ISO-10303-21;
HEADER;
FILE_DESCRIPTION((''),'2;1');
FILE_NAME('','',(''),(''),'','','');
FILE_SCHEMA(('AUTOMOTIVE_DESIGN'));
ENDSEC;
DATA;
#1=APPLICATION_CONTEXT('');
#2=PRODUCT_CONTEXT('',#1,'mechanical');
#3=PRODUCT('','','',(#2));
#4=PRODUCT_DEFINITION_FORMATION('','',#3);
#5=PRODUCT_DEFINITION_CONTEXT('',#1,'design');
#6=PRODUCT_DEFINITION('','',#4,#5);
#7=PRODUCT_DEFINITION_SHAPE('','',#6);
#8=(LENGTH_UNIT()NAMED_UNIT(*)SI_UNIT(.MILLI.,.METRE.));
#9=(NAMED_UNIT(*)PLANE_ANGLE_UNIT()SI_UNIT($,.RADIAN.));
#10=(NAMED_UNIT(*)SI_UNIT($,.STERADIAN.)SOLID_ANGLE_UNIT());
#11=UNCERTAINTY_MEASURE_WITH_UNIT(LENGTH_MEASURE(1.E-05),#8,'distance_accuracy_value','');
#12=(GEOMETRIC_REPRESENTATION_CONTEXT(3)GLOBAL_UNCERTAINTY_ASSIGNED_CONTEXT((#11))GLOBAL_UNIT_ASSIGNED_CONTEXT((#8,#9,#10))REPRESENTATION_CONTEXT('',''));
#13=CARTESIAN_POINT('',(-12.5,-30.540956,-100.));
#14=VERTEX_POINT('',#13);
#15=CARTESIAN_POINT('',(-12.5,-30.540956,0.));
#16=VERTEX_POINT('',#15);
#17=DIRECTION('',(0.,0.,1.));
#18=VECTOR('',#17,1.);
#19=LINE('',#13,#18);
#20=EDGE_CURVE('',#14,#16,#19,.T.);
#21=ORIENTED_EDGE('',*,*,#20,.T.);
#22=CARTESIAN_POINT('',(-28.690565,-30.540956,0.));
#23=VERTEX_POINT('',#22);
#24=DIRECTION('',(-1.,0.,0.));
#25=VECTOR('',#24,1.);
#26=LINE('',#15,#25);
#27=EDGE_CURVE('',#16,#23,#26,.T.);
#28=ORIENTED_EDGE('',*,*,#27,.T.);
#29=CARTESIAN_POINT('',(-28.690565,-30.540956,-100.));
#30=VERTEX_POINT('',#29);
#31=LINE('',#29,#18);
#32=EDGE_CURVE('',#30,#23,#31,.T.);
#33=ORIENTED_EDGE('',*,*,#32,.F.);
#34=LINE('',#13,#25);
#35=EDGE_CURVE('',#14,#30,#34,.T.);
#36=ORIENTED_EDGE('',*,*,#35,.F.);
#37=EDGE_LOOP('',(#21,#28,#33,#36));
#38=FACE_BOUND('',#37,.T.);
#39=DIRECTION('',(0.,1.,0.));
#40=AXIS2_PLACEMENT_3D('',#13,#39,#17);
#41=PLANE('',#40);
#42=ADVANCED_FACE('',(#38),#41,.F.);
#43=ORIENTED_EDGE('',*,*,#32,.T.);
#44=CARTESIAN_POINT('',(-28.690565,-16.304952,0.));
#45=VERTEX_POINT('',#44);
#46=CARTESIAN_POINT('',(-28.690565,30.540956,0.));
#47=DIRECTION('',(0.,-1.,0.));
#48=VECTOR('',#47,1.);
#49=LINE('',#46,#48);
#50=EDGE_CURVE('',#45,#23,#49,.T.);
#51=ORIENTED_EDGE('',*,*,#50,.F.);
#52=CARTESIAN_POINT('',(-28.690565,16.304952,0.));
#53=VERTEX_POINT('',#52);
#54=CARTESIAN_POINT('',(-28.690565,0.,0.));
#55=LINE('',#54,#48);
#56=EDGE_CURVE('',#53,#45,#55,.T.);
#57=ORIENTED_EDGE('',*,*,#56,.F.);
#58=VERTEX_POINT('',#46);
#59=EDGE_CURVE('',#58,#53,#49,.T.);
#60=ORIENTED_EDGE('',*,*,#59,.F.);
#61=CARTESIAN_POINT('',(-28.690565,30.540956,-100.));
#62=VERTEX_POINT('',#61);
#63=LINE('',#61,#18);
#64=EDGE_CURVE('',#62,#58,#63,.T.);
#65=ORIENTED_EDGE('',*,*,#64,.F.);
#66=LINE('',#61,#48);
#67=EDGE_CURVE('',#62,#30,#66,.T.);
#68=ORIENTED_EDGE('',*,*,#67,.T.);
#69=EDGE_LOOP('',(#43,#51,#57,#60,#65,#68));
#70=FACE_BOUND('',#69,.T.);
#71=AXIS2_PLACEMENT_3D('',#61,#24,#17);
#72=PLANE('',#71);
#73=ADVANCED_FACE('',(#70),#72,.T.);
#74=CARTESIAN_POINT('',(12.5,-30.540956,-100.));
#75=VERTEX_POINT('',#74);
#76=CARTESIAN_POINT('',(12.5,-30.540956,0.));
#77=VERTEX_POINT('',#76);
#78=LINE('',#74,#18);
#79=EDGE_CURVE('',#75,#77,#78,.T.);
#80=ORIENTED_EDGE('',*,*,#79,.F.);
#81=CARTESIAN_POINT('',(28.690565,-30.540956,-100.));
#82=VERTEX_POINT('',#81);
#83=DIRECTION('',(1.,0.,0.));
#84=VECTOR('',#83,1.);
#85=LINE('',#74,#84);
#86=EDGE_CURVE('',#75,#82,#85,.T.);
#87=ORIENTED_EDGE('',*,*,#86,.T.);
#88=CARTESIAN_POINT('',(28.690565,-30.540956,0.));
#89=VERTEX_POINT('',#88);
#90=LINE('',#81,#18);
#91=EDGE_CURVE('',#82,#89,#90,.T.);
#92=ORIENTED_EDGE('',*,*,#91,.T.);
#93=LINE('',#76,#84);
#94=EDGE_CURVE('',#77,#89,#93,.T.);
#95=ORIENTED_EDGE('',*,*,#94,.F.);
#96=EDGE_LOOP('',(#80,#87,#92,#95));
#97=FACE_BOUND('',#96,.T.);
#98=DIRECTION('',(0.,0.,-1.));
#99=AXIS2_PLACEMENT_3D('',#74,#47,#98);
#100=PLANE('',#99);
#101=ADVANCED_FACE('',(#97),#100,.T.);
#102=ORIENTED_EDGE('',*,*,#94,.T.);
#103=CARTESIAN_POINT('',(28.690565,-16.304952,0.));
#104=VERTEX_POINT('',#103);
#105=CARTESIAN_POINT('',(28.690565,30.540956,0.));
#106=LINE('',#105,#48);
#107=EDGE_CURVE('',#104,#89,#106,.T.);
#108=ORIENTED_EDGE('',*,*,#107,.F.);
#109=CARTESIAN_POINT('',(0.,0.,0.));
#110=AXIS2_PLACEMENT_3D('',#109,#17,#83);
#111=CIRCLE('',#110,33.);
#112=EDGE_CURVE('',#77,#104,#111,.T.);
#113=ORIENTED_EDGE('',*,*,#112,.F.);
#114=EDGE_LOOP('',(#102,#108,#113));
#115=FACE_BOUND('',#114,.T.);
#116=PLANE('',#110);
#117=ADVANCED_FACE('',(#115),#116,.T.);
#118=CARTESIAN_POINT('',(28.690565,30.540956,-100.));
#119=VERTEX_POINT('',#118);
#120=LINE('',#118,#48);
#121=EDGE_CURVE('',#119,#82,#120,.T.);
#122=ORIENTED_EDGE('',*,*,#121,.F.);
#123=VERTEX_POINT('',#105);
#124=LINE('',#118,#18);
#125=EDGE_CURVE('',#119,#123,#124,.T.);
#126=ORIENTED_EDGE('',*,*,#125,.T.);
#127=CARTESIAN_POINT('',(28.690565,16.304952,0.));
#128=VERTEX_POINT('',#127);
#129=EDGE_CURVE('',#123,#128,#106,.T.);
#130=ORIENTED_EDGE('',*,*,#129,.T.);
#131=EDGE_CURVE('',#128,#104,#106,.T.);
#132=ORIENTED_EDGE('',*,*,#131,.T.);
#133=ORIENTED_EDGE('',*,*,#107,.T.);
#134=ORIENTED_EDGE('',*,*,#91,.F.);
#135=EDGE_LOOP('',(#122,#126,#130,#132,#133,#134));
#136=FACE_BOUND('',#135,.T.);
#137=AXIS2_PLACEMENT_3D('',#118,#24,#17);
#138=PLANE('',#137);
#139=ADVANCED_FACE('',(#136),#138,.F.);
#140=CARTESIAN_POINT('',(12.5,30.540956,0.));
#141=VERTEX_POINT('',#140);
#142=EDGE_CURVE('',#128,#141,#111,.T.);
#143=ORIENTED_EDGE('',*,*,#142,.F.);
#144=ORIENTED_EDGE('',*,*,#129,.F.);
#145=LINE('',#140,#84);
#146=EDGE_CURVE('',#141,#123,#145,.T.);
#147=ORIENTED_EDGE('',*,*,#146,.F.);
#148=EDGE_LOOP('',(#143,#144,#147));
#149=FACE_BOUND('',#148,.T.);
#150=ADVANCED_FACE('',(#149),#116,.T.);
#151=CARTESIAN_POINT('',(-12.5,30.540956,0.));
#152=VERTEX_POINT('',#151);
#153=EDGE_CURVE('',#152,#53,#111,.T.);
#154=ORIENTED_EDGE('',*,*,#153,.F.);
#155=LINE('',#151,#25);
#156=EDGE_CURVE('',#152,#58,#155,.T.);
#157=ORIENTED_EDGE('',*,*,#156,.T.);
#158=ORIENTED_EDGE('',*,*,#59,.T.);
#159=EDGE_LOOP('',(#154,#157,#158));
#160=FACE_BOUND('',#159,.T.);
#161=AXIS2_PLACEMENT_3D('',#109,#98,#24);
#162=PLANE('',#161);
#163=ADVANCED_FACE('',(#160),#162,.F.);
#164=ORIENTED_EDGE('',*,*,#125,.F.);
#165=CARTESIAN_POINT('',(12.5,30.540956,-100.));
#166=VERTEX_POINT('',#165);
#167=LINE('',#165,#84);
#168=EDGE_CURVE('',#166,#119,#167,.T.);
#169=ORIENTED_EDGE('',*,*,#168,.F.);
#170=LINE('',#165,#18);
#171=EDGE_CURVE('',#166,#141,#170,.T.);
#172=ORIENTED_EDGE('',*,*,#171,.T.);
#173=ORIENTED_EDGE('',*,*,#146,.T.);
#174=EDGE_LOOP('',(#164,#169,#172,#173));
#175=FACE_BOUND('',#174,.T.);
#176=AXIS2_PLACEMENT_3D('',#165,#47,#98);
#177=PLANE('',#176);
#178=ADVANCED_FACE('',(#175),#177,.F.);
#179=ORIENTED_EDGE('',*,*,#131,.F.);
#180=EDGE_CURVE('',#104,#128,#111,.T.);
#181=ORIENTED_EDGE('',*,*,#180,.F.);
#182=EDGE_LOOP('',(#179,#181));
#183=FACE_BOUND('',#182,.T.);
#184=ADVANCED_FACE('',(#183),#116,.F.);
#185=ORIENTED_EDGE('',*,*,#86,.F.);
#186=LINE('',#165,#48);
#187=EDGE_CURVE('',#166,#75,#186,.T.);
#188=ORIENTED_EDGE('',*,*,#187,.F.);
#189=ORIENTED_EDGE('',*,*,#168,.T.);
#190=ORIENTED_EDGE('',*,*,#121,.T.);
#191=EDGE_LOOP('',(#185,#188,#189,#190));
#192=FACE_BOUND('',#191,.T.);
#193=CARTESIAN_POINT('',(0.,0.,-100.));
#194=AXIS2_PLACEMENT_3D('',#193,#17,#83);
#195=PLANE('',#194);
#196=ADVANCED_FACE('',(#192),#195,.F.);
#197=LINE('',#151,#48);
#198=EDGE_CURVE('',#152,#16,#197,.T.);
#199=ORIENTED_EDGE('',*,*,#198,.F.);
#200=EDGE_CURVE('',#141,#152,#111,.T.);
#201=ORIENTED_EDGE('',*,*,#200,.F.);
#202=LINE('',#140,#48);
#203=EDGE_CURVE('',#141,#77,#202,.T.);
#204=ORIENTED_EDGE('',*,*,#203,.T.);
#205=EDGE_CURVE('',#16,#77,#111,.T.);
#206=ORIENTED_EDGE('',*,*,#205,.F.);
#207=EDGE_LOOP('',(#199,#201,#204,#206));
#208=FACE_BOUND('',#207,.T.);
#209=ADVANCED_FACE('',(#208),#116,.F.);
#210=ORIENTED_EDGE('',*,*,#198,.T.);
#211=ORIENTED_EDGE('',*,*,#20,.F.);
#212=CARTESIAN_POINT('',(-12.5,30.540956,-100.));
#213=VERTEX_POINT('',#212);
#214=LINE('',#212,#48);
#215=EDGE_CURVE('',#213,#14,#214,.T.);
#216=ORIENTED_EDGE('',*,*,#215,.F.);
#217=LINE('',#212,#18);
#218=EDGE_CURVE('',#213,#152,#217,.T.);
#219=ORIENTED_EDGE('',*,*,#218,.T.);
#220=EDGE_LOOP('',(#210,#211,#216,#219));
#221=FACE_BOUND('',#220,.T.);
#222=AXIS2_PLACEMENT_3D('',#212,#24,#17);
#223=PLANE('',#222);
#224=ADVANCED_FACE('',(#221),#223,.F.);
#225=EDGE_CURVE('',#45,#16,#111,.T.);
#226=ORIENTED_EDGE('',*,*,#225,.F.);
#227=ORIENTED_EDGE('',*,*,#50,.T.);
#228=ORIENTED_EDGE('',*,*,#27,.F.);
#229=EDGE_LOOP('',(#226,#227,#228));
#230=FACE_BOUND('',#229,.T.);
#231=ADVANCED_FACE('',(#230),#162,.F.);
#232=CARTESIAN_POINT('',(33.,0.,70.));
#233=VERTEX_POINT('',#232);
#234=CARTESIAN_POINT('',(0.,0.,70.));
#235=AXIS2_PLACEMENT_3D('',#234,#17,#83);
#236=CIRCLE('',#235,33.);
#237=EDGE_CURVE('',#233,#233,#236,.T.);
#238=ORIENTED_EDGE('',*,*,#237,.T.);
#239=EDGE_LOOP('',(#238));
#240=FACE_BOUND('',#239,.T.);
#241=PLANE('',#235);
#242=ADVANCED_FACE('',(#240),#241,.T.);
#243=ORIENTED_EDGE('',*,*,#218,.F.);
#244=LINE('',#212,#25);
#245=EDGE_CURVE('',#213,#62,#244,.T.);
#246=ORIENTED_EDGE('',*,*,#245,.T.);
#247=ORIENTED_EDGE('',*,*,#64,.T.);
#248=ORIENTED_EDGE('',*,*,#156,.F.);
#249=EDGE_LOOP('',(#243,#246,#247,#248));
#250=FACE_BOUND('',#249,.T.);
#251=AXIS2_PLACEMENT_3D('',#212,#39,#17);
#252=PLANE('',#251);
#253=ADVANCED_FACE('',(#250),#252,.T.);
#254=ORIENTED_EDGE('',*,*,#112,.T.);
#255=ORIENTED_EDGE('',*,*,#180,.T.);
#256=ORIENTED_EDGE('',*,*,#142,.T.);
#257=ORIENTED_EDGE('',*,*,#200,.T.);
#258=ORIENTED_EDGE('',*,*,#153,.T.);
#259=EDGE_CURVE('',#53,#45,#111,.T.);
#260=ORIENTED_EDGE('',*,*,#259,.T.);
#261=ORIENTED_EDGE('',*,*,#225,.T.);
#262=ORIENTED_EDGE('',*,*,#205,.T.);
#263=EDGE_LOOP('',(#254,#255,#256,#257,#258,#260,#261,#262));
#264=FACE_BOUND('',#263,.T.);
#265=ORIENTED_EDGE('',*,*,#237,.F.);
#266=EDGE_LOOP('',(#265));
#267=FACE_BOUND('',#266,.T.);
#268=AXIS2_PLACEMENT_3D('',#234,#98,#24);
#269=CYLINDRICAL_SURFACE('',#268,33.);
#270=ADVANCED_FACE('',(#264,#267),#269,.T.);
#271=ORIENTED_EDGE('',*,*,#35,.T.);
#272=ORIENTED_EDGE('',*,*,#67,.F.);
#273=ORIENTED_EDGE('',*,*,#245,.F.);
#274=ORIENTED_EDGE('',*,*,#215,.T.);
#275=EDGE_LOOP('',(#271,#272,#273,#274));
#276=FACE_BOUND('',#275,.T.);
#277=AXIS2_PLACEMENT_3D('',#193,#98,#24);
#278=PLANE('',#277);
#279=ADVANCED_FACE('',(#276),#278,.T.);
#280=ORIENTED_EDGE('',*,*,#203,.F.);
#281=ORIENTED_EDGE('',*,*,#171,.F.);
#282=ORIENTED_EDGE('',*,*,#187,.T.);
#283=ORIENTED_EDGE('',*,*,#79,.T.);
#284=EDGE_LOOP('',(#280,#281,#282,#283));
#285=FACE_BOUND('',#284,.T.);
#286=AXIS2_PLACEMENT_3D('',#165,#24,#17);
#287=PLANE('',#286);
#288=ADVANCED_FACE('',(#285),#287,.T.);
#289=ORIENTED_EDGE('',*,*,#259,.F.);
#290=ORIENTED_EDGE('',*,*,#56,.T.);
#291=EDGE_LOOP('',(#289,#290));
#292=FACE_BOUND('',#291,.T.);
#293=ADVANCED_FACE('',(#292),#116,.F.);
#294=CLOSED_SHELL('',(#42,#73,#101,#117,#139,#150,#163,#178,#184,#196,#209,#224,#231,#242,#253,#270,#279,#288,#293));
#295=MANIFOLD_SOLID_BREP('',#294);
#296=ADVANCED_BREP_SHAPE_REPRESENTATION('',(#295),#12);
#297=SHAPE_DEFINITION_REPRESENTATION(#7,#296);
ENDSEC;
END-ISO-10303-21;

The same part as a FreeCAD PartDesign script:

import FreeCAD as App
import Part
import Sketcher

V = App.Vector


def add_polygon(sketch, points):
    """Adds a closed chain of lines whose ends are joined by coincident constraints."""
    first, n = sketch.GeometryCount, len(points)
    for a, b in zip(points, points[1:] + points[:1]):
        sketch.addGeometry(Part.LineSegment(App.Vector(*a, 0), App.Vector(*b, 0)), False)
    for i in range(n):
        sketch.addConstraint(Sketcher.Constraint("Coincident", first + i, 2, first + (i + 1) % n, 1))

doc = App.newDocument("Part")
body = doc.addObject("PartDesign::Body", "Body")

sketch1 = body.newObject("Sketcher::SketchObject", "Sketch")
sketch1.AttachmentSupport = (doc.getObject("XY_Plane"), [""])
sketch1.MapMode = "FlatFace"
sketch1.addGeometry(Part.Circle(V(0, 0, 0), V(0, 0, 1), 33), False)
sketch1.addConstraint(Sketcher.Constraint("Coincident", 0, 3, -1, 1))
sketch1.addConstraint(Sketcher.Constraint("Diameter", 0, 66.0))
pad1 = body.newObject("PartDesign::Pad", "Pad")
pad1.Profile = sketch1
pad1.Length = 70

sketch2 = body.newObject("Sketcher::SketchObject", "Sketch001")
sketch2.AttachmentSupport = (doc.getObject("XY_Plane"), [""])
sketch2.MapMode = "FlatFace"
add_polygon(sketch2, [(29, 31), (29, -31), (12, -31), (12, 31)])
add_polygon(sketch2, [(-12, 31), (-12, -31), (-29, -31), (-29, 31)])
sketch2.addConstraint(Sketcher.Constraint("Vertical", 0))
sketch2.addConstraint(Sketcher.Constraint("Horizontal", 1))
sketch2.addConstraint(Sketcher.Constraint("Vertical", 2))
sketch2.addConstraint(Sketcher.Constraint("Horizontal", 3))
sketch2.addConstraint(Sketcher.Constraint("Vertical", 4))
sketch2.addConstraint(Sketcher.Constraint("Horizontal", 5))
sketch2.addConstraint(Sketcher.Constraint("Vertical", 6))
sketch2.addConstraint(Sketcher.Constraint("Horizontal", 7))
sketch2.addConstraint(Sketcher.Constraint("Symmetric", 2, 2, 4, 2, -1, 1))
sketch2.addConstraint(Sketcher.Constraint("Symmetric", 0, 2, 6, 2, -1, 1))
sketch2.addConstraint(Sketcher.Constraint("Horizontal", 1, 2, 4, 2))
sketch2.addConstraint(Sketcher.Constraint("DistanceX", 4, 2, 1, 2, 25.0))
sketch2.addConstraint(Sketcher.Constraint("DistanceX", 1, 2, 1, 1, 16.190565))
sketch2.addConstraint(Sketcher.Constraint("DistanceY", 0, 2, 0, 1, 61.081912))
pad2 = body.newObject("PartDesign::Pad", "Pad001")
pad2.Profile = sketch2
pad2.Length = 100
pad2.Reversed = True

doc.recompute()
